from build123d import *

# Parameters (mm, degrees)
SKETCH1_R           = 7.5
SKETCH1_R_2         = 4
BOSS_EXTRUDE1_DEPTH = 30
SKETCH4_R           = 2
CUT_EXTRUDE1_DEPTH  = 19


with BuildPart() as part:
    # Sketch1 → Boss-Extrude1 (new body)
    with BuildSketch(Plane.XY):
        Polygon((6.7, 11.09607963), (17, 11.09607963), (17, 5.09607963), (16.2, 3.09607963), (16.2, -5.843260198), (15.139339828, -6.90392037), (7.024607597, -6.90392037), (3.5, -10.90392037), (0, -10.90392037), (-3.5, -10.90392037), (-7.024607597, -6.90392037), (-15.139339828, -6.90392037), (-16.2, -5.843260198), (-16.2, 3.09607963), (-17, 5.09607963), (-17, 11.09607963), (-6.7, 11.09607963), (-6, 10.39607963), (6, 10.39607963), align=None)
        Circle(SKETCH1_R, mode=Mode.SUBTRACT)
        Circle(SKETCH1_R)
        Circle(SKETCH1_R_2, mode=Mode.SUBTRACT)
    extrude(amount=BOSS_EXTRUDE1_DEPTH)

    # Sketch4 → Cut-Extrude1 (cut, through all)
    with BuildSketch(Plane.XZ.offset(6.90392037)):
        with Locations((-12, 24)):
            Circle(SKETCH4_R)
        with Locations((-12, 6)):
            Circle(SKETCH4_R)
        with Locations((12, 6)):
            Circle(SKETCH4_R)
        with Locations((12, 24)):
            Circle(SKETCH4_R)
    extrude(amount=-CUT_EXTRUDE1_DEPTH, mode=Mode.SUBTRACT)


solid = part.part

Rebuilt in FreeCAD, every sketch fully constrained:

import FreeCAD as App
import Part
import Sketcher


def add_polygon(sketch, points):
    """Adds a closed chain of lines whose ends are joined by coincident constraints."""
    first, n = sketch.GeometryCount, len(points)
    for a, b in zip(points, points[1:] + points[:1]):
        sketch.addGeometry(Part.LineSegment(App.Vector(*a, 0), App.Vector(*b, 0)), False)
    for i in range(n):
        sketch.addConstraint(Sketcher.Constraint("Coincident", first + i, 2, first + (i + 1) % n, 1))

doc = App.newDocument("Part")
body = doc.addObject("PartDesign::Body", "Body")

# Sketch on XY plane
sketch1 = body.newObject("Sketcher::SketchObject", "Sketch")
sketch1.AttachmentSupport = (doc.getObject("XY_Plane"), [""])
sketch1.MapMode = "FlatFace"
add_polygon(sketch1, [(17, 11.1), (6.7, 11.1), (6, 10.4), (-6, 10.4), (-6.7, 11.1), (-17, 11.1), (-17, 5.1), (-16.2, 3.1), (-16.2, -5.8), (-15.1, -6.9), (-7, -6.9), (-3.5, -10.9), (3.5, -10.9), (7, -6.9), (15.1, -6.9), (16.2, -5.8), (16.2, 3.1), (17, 5.1)])  # lines 0-17
sketch1.addGeometry(Part.Circle(App.Vector(0, 0, 0), App.Vector(0, 0, 1), 4), False)  # 18
sketch1.addConstraint([
    Sketcher.Constraint("Horizontal", 0),
    Sketcher.Constraint("Horizontal", 2),
    Sketcher.Constraint("Horizontal", 4),
    Sketcher.Constraint("Vertical", 5),
    Sketcher.Constraint("Vertical", 7),
    Sketcher.Constraint("Horizontal", 9),
    Sketcher.Constraint("Horizontal", 11),
    Sketcher.Constraint("Horizontal", 13),
    Sketcher.Constraint("Vertical", 15),
    Sketcher.Constraint("Vertical", 17),
    Sketcher.Constraint("Coincident", 18, 3, -1, 1),
    Sketcher.Constraint("Symmetric", 0, 2, 3, 2, -2),
    Sketcher.Constraint("Symmetric", 9, 2, 12, 2, -2),
    Sketcher.Constraint("Symmetric", 7, 2, 14, 2, -2),
    Sketcher.Constraint("Symmetric", 5, 2, 16, 2, -2),
    Sketcher.Constraint("Perpendicular", 1, 3),
    Sketcher.Constraint("Parallel", 3, 8),
    Sketcher.Constraint("Perpendicular", 8, 14),
    Sketcher.Constraint("Horizontal", 6, 2, 15, 2),
    Sketcher.Constraint("Equal", 9, 13),
    Sketcher.Constraint("Equal", 10, 12),
    Sketcher.Constraint("Diameter", 18, 8.0),
    Sketcher.Constraint("DistanceX", 2, 2, 2, 1, 12.0),
    Sketcher.Constraint("DistanceX", 11, 1, 11, 2, 7.0),
    Sketcher.Constraint("DistanceY", 5, 2, 5, 1, 6.0),
    Sketcher.Constraint("DistanceX", 0, 2, 0, 1, 10.3),
    Sketcher.Constraint("DistanceX", 4, 2, -1, 1, 17.0),
    Sketcher.Constraint("DistanceY", 6, 2, 5, 2, 2.0),
    Sketcher.Constraint("DistanceY", 8, 2, 6, 2, 10.0),
    Sketcher.Constraint("DistanceY", 10, 2, 9, 2, 4.0),
    Sketcher.Constraint("Distance", 8, 1.5),
    Sketcher.Constraint("DistanceX", 6, 2, -1, 1, 16.2),
    Sketcher.Constraint("Distance", 10, 5.331309),
    Sketcher.Constraint("DistanceY", -1, 1, 0, 2, 11.09608),
])
pad1 = body.newObject("PartDesign::Pad", "Pad")
pad1.Profile = sketch1
pad1.Length = 30

# Sketch on XZ plane
sketch2 = body.newObject("Sketcher::SketchObject", "Sketch001")
sketch2.AttachmentSupport = (doc.getObject("XZ_Plane"), [""])
sketch2.MapMode = "FlatFace"
sketch2.AttachmentOffset = App.Placement(App.Vector(0, 0, 6.90392), App.Rotation())
sketch2.addGeometry([
    Part.Circle(App.Vector(-12, 24, 0), App.Vector(0, 0, 1), 2),
    Part.Circle(App.Vector(-12, 6, 0), App.Vector(0, 0, 1), 2),
    Part.Circle(App.Vector(12, 6, 0), App.Vector(0, 0, 1), 2),
    Part.Circle(App.Vector(12, 24, 0), App.Vector(0, 0, 1), 2),
], False)
sketch2.addConstraint([
    Sketcher.Constraint("Equal", 0, 1),
    Sketcher.Constraint("Equal", 1, 2),
    Sketcher.Constraint("Equal", 2, 3),
    Sketcher.Constraint("Symmetric", 1, 3, 2, 3, -2),
    Sketcher.Constraint("Symmetric", 0, 3, 3, 3, -2),
    Sketcher.Constraint("Vertical", 0, 3, 1, 3),
    Sketcher.Constraint("Diameter", 0, 4.0),
    Sketcher.Constraint("DistanceX", 0, 3, -1, 1, 12.0),
    Sketcher.Constraint("DistanceY", -1, 1, 0, 3, 24.0),
    Sketcher.Constraint("DistanceY", -1, 1, 1, 3, 6.0),
])
pocket1 = body.newObject("PartDesign::Pocket", "Pocket")
pocket1.Profile = sketch2
pocket1.Type = "ThroughAll"

doc.recompute()
